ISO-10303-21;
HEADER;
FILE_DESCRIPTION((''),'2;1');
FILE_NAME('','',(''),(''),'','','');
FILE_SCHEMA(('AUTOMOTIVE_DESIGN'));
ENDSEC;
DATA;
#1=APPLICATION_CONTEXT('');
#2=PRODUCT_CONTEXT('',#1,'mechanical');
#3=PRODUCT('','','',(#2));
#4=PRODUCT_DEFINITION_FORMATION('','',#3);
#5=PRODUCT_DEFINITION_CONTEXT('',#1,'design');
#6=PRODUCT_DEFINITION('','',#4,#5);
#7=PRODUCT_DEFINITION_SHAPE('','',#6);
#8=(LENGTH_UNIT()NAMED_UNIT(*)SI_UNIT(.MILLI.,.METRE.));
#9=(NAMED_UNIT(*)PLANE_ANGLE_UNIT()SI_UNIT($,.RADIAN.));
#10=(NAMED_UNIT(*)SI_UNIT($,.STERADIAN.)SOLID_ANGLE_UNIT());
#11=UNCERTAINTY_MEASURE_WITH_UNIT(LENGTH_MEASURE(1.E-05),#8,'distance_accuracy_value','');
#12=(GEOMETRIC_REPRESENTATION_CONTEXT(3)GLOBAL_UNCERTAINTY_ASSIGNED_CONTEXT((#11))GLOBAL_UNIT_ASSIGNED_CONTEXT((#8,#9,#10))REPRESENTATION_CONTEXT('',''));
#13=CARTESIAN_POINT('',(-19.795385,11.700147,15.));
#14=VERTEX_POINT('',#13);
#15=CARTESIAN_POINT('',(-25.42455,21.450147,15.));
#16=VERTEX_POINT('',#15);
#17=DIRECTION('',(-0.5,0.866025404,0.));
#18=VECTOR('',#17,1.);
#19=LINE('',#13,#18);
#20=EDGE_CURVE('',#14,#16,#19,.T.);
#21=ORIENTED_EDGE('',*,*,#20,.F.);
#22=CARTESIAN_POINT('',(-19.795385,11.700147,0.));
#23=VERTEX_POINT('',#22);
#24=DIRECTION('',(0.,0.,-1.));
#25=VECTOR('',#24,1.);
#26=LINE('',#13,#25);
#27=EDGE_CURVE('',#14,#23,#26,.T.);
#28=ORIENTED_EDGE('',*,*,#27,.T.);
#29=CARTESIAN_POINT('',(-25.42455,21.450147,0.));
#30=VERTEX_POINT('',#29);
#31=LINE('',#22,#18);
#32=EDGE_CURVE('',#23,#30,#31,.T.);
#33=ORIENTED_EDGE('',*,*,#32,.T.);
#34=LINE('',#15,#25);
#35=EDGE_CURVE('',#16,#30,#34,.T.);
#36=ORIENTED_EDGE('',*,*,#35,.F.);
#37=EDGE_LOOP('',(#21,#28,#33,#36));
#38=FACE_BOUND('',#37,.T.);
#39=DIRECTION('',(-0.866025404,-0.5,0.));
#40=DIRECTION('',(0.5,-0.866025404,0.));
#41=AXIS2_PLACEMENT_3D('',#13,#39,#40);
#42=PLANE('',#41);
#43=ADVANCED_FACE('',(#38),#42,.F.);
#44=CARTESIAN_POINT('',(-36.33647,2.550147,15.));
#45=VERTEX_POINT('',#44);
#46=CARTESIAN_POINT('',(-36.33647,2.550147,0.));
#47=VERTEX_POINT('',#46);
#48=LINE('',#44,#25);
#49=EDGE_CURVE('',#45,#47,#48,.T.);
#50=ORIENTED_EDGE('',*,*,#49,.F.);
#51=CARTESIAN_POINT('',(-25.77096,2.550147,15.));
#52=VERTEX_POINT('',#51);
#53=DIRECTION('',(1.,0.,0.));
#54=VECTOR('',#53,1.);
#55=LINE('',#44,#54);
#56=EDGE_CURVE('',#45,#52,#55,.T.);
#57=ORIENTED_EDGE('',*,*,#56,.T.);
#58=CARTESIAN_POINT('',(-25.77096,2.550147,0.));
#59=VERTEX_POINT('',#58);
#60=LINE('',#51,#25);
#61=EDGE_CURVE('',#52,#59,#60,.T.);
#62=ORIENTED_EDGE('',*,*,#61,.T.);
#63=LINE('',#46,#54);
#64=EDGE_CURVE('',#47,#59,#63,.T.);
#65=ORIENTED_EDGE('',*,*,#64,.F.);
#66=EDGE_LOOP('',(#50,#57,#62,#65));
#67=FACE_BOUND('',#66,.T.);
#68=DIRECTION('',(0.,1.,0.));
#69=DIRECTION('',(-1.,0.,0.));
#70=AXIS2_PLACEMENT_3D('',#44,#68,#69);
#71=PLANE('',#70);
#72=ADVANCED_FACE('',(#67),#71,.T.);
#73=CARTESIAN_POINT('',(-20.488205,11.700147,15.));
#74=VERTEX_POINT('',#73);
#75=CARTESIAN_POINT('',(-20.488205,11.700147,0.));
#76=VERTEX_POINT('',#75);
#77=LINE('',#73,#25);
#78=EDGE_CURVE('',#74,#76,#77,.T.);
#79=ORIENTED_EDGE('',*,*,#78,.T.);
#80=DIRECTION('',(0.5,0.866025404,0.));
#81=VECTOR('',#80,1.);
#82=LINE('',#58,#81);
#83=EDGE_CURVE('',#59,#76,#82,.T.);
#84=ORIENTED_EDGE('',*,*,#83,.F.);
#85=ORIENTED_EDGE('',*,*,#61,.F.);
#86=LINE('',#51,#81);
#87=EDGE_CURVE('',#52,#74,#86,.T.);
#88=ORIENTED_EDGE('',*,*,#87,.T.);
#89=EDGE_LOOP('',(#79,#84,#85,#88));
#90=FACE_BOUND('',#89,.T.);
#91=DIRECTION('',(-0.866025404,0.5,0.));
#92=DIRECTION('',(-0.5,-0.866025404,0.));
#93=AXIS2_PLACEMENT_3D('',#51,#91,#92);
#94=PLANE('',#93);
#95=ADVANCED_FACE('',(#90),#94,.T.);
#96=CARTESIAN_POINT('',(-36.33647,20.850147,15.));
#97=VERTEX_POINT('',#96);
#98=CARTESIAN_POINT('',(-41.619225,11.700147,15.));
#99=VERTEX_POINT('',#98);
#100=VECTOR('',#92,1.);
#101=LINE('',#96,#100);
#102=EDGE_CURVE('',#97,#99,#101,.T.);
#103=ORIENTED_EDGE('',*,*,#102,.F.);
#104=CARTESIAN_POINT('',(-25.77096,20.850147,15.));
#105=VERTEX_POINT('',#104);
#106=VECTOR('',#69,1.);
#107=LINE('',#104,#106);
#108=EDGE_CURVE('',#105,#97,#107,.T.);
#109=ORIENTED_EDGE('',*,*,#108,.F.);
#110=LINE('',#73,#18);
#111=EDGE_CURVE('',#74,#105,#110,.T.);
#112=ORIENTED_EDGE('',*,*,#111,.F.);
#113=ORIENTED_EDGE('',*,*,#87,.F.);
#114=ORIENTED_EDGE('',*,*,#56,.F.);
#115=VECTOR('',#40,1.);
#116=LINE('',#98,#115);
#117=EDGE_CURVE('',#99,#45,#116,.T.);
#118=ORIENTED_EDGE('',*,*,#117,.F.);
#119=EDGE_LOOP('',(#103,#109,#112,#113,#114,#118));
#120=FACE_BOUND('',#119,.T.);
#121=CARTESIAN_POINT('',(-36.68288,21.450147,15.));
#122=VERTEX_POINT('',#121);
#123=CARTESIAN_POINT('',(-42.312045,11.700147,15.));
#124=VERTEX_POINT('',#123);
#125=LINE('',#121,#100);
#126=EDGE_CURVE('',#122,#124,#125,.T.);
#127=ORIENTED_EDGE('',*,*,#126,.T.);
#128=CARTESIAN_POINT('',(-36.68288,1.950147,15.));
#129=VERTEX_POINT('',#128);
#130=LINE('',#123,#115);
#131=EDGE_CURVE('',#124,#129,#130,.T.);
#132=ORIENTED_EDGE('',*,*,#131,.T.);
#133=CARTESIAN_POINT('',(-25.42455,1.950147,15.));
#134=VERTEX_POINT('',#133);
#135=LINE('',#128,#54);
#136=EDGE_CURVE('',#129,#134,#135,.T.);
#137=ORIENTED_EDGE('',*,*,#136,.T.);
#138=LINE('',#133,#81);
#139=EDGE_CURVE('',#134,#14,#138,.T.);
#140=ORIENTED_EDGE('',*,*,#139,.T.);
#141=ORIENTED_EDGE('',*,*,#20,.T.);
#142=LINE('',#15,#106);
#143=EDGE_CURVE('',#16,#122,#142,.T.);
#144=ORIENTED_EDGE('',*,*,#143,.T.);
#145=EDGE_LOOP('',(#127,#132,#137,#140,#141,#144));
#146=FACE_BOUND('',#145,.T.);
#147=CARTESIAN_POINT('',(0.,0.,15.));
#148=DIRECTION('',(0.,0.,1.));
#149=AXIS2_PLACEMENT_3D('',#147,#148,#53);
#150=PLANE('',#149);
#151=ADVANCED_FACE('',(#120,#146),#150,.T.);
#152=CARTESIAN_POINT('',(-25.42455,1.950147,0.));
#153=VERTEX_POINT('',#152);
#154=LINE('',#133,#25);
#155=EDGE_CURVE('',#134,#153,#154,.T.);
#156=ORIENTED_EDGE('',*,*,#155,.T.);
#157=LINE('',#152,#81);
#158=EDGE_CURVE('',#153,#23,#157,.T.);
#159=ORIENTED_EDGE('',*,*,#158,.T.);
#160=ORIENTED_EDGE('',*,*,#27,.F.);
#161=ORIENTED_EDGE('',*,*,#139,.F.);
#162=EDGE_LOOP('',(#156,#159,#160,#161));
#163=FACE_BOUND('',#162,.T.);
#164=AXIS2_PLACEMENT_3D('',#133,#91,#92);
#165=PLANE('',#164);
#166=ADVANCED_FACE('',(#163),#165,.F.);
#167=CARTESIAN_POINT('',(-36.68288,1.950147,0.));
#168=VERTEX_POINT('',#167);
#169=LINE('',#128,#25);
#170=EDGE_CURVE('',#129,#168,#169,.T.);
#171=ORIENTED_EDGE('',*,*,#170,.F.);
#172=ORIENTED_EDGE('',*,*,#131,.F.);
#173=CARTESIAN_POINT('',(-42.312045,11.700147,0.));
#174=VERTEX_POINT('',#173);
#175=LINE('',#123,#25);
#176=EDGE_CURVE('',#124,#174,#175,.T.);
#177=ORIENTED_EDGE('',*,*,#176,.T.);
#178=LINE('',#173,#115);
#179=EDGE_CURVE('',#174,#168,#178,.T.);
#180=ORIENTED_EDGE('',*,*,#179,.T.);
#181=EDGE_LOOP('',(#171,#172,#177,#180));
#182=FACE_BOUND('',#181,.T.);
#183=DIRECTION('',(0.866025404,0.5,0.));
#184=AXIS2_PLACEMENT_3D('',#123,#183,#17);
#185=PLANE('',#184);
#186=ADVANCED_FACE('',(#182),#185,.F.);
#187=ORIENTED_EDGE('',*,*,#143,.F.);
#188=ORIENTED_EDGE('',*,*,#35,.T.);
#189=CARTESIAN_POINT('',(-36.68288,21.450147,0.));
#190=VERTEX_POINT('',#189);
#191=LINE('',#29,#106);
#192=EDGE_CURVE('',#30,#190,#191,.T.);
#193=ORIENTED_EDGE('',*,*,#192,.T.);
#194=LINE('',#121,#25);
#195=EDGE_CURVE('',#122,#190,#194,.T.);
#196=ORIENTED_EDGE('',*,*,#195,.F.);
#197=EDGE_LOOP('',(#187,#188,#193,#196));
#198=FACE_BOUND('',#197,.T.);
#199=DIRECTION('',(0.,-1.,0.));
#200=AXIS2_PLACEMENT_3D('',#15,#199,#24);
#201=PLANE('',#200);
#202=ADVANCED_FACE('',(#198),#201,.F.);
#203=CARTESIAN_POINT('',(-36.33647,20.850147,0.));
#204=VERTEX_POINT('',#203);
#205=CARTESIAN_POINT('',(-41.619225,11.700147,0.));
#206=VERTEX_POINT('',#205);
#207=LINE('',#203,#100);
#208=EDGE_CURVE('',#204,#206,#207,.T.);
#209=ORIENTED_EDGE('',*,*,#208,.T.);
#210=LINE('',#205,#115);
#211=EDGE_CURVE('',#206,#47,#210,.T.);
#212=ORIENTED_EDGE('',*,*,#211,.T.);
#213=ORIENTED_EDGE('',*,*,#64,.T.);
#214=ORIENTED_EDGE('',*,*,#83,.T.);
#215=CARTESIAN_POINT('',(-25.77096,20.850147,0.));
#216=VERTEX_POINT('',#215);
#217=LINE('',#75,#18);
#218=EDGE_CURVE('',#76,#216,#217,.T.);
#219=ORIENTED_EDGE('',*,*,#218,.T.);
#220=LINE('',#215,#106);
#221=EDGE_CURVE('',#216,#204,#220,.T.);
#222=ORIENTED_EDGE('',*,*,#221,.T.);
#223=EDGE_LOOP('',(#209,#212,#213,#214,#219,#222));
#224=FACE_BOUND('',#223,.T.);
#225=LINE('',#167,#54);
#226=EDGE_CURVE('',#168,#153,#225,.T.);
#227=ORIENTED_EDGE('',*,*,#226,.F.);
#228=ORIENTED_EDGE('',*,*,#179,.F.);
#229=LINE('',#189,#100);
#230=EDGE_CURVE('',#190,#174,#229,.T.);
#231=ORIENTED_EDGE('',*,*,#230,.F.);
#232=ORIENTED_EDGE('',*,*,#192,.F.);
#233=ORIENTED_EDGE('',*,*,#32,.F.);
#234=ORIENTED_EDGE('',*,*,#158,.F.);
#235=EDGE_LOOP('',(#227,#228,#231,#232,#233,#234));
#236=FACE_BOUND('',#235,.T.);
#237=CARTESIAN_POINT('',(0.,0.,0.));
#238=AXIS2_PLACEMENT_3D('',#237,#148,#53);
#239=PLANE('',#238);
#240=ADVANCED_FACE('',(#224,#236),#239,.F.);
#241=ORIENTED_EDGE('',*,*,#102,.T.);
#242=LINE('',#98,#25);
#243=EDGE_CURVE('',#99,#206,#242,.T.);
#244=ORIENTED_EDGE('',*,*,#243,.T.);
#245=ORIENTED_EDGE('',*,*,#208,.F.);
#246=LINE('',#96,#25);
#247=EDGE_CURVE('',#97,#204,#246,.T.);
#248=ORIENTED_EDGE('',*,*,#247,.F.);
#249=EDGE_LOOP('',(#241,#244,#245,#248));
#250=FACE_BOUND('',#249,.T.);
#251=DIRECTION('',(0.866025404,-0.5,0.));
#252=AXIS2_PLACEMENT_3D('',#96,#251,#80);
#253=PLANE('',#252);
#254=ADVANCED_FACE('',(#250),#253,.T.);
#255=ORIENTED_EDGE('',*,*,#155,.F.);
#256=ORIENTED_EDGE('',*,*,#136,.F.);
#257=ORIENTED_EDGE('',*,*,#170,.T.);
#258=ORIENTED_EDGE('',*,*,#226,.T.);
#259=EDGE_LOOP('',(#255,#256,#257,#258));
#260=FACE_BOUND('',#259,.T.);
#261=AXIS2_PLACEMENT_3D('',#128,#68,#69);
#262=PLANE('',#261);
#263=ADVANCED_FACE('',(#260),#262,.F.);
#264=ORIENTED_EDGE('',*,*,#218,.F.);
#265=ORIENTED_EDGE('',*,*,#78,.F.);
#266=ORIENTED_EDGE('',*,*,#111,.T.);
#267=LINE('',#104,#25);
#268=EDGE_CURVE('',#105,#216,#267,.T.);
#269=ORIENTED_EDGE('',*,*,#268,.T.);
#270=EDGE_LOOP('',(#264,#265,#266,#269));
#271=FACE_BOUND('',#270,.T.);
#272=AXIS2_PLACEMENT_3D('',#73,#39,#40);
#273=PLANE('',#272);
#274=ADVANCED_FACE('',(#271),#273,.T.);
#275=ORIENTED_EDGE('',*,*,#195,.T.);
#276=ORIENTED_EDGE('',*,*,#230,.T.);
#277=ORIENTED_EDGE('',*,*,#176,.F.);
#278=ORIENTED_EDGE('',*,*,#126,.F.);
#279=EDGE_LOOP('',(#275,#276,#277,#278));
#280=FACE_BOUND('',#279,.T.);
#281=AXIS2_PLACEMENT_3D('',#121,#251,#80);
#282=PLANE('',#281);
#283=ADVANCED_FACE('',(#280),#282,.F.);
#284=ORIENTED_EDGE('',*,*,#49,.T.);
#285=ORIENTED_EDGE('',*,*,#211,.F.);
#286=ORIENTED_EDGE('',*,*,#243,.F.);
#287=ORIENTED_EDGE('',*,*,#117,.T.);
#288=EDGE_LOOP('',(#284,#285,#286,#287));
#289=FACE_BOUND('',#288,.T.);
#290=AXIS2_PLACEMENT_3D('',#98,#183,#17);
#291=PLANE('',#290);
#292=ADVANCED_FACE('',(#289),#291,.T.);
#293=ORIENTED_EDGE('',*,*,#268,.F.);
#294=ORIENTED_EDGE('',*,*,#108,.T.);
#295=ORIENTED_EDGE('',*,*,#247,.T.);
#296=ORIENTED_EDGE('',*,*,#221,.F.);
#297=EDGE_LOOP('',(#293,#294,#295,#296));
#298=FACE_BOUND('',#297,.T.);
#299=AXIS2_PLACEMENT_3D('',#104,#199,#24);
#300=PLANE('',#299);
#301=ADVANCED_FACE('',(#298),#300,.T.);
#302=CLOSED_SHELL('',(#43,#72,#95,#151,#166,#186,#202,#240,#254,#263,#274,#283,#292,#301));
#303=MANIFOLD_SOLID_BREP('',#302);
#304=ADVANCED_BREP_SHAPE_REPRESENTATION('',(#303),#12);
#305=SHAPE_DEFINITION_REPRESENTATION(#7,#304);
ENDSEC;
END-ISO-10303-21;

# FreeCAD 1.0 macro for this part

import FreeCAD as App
import Part
import Sketcher

V = App.Vector
Q = App.Units.Quantity


def add_polygon(sketch, points):
    """Adds a closed chain of lines whose ends are joined by coincident constraints."""
    first, n = sketch.GeometryCount, len(points)
    for a, b in zip(points, points[1:] + points[:1]):
        sketch.addGeometry(Part.LineSegment(App.Vector(*a, 0), App.Vector(*b, 0)), False)
    for i in range(n):
        sketch.addConstraint(Sketcher.Constraint("Coincident", first + i, 2, first + (i + 1) % n, 1))

doc = App.newDocument("Part")
body = doc.addObject("PartDesign::Body", "Body")

# Sketch on XY plane
sketch1 = doc.addObject("Sketcher::SketchObject", "Sketch")
body.addObject(sketch1)
sketch1.AttachmentSupport = (doc.XY_Plane, [""])
sketch1.MapMode = "FlatFace"
add_polygon(sketch1, [(-20, 12), (-25, 21), (-37, 21), (-42, 12), (-37, 2), (-25, 2)])  # lines 0-5
add_polygon(sketch1, [(-26, 21), (-20, 12), (-26, 3), (-36, 3), (-42, 12), (-36, 21)])  # lines 6-11
sketch1.addConstraint([
    Sketcher.Constraint("Horizontal", 1),
    Sketcher.Constraint("Horizontal", 4),
    Sketcher.Constraint("Horizontal", 8),
    Sketcher.Constraint("Horizontal", 11),
    Sketcher.Constraint("Parallel", 0, 3),
    Sketcher.Constraint("Parallel", 2, 5),
    Sketcher.Constraint("Parallel", 3, 6),
    Sketcher.Constraint("Parallel", 5, 7),
    Sketcher.Constraint("Parallel", 6, 9),
    Sketcher.Constraint("Parallel", 7, 10),
    Sketcher.Constraint("Horizontal", 2, 2, 5, 2),
    Sketcher.Constraint("Horizontal", 5, 2, 6, 2),
    Sketcher.Constraint("Horizontal", 6, 2, 9, 2),
    Sketcher.Constraint("Vertical", 1, 2, 3, 2),
    Sketcher.Constraint("Vertical", 0, 2, 4, 2),
    Sketcher.Constraint("Vertical", 8, 2, 10, 2),
    Sketcher.Constraint("Angle", 0, Q("120 deg")),
    Sketcher.Constraint("DistanceY", 3, 2, 1, 2, 19.5),
    Sketcher.Constraint("DistanceY", 4, 2, 7, 2, 0.6),
    Sketcher.Constraint("DistanceX", 1, 2, 1, 1, 11.25833),
    Sketcher.Constraint("DistanceX", 8, 2, 8, 1, 10.56551),
    Sketcher.Constraint("DistanceX", 0, 2, -1, 1, 25.42455),
    Sketcher.Constraint("DistanceX", 7, 2, -1, 1, 25.77096),
    Sketcher.Constraint("DistanceY", -1, 1, 0, 2, 21.450147),
])
pad1 = doc.addObject("PartDesign::Pad", "Pad")
body.addObject(pad1)
pad1.Profile = sketch1
pad1.Length = 15

doc.recompute()
